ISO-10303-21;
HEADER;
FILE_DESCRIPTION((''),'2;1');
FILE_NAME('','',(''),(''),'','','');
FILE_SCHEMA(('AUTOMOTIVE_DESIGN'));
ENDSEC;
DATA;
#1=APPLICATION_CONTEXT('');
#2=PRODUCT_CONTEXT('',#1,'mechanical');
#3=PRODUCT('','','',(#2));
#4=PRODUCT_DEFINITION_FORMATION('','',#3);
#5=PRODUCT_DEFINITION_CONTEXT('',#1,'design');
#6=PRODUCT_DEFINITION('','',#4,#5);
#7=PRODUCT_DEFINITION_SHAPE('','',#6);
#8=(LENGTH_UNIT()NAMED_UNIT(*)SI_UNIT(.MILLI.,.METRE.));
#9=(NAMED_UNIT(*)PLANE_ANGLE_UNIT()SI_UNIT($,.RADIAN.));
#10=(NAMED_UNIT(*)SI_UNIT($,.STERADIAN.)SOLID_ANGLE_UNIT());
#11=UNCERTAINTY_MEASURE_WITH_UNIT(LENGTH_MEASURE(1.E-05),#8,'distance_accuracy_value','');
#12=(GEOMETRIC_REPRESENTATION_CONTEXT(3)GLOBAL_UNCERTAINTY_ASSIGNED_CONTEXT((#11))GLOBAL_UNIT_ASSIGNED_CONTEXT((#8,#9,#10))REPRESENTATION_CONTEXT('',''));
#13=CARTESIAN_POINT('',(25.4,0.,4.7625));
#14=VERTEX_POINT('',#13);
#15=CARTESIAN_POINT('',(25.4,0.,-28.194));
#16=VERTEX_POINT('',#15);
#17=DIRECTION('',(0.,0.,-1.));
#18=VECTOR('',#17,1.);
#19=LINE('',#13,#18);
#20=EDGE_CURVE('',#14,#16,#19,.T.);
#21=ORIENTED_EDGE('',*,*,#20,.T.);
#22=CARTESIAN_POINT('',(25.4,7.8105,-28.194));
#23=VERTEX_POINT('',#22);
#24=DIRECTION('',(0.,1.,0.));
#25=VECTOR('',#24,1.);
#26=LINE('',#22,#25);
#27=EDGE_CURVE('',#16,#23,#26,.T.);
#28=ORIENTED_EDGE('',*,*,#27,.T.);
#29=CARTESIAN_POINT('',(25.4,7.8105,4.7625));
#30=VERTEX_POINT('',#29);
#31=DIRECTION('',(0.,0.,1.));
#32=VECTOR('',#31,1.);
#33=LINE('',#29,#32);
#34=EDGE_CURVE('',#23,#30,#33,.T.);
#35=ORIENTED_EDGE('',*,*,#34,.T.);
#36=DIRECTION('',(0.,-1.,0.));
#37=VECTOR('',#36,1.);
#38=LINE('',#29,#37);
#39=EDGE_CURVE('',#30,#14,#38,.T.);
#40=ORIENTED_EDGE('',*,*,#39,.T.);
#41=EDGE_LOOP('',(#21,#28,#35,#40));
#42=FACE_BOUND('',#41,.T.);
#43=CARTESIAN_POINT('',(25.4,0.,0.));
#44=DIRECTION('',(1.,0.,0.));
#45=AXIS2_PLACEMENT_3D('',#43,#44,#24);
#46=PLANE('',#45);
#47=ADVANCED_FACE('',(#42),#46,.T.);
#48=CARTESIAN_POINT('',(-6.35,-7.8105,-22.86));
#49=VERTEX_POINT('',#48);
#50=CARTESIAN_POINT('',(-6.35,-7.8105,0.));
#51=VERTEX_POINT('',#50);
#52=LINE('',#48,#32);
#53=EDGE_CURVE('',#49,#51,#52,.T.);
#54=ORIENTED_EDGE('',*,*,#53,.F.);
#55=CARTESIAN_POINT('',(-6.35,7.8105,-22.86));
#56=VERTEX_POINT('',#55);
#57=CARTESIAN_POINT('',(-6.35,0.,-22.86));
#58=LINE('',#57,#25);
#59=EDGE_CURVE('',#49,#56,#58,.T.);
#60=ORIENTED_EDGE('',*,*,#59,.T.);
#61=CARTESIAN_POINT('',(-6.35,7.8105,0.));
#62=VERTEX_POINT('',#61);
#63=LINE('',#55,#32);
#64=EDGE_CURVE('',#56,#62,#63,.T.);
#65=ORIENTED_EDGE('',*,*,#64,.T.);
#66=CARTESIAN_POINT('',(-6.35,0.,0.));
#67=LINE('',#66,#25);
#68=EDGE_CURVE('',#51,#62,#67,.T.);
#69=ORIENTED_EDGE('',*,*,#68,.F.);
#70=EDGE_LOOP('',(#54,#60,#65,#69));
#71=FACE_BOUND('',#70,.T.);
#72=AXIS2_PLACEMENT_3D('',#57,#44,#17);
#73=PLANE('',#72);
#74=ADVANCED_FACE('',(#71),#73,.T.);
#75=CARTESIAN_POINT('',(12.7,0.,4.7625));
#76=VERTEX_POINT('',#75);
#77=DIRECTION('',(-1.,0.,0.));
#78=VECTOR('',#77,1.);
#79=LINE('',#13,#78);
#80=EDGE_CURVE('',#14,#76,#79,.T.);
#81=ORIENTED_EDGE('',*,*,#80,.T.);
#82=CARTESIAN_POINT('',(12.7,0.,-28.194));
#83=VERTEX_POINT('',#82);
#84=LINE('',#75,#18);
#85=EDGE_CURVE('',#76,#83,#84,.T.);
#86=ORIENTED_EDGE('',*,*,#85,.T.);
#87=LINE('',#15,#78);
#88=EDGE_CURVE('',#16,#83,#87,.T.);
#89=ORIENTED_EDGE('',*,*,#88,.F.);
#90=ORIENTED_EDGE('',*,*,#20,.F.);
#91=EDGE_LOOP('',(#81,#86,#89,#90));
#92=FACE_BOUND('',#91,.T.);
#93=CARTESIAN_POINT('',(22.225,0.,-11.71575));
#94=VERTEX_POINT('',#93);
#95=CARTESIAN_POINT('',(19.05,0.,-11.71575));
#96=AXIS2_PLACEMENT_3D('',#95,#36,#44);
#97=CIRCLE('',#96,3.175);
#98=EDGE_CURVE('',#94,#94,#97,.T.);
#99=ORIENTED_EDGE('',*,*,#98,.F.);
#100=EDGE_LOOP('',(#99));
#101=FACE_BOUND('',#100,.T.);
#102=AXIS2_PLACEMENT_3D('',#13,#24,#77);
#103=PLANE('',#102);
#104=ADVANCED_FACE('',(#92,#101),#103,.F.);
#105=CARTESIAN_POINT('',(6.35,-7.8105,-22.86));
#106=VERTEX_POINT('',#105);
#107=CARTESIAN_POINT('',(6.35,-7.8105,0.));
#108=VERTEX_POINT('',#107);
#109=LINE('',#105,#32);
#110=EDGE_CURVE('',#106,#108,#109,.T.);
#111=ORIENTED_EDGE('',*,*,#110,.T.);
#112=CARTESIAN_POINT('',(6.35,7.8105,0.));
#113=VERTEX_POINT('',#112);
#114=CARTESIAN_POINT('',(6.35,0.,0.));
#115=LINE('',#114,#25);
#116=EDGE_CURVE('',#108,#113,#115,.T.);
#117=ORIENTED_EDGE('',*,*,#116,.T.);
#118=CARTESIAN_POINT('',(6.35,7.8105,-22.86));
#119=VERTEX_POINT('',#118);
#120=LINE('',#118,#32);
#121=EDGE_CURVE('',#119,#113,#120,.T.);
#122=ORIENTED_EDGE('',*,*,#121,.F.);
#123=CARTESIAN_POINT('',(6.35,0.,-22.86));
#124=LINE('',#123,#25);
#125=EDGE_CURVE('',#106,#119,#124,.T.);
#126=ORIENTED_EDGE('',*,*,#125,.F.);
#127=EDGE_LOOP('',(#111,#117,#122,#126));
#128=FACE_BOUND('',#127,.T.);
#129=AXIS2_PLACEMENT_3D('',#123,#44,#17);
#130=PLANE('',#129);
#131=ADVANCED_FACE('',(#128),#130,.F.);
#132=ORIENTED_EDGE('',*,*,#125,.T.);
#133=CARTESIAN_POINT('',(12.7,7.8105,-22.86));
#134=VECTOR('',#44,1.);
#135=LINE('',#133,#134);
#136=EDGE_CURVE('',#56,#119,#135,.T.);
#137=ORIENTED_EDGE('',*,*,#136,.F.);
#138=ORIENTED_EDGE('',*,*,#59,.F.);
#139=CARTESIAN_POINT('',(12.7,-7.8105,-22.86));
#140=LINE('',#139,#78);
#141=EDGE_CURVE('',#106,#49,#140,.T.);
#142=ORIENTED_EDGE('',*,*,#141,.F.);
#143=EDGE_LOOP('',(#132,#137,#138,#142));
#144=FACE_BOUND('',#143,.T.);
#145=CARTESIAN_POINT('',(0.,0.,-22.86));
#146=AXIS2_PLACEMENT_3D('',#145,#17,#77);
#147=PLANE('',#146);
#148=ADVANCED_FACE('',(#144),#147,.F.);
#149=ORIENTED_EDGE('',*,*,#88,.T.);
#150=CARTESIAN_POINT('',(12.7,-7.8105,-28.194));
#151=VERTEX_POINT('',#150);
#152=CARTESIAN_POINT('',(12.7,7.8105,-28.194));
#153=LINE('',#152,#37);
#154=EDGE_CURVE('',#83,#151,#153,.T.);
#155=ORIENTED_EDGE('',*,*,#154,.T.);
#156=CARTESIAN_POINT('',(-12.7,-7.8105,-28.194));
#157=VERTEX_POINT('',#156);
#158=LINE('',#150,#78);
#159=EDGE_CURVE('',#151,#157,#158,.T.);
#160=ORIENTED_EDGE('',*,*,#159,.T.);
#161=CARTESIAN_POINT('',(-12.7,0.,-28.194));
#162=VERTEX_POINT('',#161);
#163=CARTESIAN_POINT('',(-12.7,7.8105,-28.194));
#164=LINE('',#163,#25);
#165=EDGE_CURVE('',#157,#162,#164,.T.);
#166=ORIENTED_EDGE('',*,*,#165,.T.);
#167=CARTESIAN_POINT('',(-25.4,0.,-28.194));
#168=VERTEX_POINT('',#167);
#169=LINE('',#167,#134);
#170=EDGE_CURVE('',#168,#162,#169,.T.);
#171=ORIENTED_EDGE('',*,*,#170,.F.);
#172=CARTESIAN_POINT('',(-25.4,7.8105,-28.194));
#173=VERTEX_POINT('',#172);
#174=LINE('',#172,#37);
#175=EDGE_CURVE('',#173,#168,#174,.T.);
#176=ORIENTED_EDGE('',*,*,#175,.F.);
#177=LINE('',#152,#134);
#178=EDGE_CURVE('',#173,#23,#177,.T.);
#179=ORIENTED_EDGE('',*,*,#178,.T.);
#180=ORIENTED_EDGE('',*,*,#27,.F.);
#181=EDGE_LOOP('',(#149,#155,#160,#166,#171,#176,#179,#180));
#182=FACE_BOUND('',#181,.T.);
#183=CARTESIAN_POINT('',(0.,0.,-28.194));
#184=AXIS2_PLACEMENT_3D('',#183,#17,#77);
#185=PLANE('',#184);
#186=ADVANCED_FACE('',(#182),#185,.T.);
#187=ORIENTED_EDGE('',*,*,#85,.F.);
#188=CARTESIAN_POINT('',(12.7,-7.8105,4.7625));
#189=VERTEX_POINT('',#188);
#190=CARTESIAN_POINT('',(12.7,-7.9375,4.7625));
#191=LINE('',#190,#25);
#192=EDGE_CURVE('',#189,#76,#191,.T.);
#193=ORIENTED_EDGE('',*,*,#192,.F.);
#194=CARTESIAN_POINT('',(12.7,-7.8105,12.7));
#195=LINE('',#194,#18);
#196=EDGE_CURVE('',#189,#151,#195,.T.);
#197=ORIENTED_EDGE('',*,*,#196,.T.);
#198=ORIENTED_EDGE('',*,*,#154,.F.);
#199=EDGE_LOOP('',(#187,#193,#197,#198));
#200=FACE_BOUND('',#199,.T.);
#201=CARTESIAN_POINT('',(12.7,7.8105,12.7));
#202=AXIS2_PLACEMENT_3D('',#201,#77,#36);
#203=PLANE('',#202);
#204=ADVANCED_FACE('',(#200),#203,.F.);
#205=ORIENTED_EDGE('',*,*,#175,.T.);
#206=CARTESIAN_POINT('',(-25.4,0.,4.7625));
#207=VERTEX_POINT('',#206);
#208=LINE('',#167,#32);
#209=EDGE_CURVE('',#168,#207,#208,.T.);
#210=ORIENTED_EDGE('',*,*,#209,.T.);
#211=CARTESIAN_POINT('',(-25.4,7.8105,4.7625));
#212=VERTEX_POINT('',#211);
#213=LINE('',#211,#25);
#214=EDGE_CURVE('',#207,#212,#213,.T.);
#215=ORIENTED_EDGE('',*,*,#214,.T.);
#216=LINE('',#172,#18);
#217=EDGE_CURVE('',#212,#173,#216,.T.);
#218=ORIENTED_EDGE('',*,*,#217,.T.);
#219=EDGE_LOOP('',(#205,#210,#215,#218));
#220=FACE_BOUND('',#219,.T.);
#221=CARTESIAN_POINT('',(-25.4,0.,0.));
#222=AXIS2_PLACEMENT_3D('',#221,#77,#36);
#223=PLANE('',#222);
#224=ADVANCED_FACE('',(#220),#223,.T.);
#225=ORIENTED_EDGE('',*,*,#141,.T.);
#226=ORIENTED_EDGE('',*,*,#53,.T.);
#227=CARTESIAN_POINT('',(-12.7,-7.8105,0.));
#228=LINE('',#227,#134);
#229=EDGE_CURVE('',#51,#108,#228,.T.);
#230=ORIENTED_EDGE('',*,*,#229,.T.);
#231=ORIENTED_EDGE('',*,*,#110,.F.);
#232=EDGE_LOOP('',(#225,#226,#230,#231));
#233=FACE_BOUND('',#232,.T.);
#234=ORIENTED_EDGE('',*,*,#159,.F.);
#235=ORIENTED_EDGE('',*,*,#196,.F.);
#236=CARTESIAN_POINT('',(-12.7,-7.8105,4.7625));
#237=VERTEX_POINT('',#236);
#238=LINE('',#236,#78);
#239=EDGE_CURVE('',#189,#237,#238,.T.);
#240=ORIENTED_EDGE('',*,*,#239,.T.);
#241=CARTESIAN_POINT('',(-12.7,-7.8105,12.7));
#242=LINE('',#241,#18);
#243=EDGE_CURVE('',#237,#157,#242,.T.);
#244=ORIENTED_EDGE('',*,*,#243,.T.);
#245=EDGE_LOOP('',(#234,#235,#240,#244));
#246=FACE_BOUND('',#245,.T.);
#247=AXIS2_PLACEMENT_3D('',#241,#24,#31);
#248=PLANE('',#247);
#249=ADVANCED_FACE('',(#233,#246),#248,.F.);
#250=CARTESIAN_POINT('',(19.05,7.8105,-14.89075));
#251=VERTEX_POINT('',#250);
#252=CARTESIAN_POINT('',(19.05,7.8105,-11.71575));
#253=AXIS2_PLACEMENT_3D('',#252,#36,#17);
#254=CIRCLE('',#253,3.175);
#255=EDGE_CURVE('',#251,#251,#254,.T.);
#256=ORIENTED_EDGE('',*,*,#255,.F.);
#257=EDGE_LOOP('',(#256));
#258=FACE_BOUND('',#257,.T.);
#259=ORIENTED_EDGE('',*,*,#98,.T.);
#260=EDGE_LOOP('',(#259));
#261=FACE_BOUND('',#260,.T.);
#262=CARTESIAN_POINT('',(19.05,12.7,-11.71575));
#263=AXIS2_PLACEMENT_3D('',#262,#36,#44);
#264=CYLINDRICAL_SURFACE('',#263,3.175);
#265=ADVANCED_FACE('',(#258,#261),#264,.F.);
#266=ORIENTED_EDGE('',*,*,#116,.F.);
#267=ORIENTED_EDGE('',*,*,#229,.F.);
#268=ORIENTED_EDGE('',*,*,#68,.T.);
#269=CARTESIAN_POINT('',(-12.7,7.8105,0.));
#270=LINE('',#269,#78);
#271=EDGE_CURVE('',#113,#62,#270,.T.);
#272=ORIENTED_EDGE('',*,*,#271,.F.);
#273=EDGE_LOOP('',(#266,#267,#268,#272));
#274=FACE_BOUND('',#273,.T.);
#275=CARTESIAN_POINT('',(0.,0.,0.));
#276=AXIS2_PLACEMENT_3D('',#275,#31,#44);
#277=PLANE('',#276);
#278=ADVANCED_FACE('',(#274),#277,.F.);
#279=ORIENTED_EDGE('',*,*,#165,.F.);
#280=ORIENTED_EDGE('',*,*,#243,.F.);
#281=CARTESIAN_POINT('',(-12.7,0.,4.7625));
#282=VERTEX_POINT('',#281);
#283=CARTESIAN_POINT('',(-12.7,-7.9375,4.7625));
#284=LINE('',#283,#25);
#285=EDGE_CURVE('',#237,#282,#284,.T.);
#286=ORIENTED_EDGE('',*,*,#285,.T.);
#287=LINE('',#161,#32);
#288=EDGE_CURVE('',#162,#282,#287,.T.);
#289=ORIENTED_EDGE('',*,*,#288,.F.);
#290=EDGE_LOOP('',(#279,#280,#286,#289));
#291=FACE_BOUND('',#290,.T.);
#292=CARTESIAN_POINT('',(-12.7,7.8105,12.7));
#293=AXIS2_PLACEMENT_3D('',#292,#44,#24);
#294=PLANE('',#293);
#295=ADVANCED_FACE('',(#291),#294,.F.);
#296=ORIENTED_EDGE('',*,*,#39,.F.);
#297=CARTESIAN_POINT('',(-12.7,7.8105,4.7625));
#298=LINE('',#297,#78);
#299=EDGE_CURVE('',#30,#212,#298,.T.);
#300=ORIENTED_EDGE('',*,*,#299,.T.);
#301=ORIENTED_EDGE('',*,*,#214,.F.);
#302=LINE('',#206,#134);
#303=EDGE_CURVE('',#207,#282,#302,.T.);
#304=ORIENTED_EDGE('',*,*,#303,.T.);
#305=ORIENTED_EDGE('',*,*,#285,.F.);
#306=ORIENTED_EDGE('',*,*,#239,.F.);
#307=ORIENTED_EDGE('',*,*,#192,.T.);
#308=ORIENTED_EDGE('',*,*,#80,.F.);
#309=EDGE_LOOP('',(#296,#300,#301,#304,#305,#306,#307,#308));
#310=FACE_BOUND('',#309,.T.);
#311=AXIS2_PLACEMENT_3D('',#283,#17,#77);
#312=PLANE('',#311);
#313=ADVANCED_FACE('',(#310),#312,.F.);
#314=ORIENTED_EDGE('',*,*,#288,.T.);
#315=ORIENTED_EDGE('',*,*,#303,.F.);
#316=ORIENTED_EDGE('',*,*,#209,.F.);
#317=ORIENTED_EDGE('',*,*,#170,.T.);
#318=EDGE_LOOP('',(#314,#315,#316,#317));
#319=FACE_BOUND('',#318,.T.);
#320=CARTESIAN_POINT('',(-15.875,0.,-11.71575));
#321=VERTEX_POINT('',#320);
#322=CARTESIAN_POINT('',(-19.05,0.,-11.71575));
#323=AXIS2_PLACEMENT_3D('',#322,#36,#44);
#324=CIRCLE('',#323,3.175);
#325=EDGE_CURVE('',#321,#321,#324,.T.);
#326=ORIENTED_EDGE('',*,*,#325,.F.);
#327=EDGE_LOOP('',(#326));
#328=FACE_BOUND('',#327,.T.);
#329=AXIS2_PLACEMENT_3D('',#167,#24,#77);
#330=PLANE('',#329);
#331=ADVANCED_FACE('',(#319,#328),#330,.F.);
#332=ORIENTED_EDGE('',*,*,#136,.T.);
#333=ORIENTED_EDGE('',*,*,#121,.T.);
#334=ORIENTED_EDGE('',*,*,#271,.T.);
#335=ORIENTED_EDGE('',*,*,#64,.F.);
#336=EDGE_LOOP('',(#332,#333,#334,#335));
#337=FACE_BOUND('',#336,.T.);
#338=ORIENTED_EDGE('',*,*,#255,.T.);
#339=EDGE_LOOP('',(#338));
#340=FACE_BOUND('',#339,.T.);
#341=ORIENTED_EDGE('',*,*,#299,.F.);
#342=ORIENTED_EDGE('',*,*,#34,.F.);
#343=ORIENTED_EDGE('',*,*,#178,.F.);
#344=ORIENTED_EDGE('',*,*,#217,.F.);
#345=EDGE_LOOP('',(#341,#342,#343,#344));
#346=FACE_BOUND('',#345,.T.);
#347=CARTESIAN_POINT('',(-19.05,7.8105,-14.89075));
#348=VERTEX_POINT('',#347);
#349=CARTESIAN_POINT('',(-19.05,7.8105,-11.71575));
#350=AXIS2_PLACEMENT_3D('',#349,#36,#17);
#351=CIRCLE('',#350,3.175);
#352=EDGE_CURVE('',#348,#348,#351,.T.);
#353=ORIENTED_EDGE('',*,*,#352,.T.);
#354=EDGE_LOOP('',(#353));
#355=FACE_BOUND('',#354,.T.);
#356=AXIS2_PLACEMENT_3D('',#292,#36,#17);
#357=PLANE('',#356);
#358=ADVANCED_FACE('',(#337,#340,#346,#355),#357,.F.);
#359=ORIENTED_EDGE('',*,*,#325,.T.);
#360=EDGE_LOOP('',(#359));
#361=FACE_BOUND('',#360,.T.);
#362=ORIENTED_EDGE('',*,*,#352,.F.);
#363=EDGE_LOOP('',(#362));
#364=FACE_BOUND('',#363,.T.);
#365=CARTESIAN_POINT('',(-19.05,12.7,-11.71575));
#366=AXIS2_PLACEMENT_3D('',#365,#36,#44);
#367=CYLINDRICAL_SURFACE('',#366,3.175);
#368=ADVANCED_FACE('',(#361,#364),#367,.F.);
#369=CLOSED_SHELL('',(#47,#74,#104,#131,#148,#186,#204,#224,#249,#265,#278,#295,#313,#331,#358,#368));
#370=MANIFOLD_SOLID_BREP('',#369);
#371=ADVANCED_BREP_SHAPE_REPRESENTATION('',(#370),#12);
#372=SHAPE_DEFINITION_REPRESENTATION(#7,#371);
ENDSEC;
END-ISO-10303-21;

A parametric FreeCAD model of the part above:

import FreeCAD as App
import Part
import Sketcher
Q = App.Units.Quantity


def add_polygon(sketch, points):
    """Adds a closed chain of lines whose ends are joined by coincident constraints."""
    first, n = sketch.GeometryCount, len(points)
    for a, b in zip(points, points[1:] + points[:1]):
        sketch.addGeometry(Part.LineSegment(App.Vector(*a, 0), App.Vector(*b, 0)), False)
    for i in range(n):
        sketch.addConstraint(Sketcher.Constraint("Coincident", first + i, 2, first + (i + 1) % n, 1))

doc = App.newDocument("Part")
body = doc.addObject("PartDesign::Body", "Body")

# Sketch on XY plane
sketch1 = body.newObject("Sketcher::SketchObject", "Sketch")
sketch1.AttachmentSupport = (doc.getObject("XY_Plane"), [""])
sketch1.MapMode = "FlatFace"
add_polygon(sketch1, [(-13, 8), (-13, -8), (13, -8), (13, 8)])  # lines 0-3
sketch1.addConstraint([
    Sketcher.Constraint("Vertical", 0),
    Sketcher.Constraint("Horizontal", 1),
    Sketcher.Constraint("Vertical", 2),
    Sketcher.Constraint("Horizontal", 3),
    Sketcher.Constraint("Symmetric", 0, 2, 2, 2, -1, 1),
    Sketcher.Constraint("DistanceX", 1, 1, 1, 2, Q("1 in")),
    Sketcher.Constraint("DistanceY", 0, 2, 0, 1, Q("0.615 in")),
])
pad1 = body.newObject("PartDesign::Pad", "Pad")
pad1.Profile = sketch1
pad1.Length = Q("0.5 in")

# Sketch on XY plane
sketch2 = body.newObject("Sketcher::SketchObject", "Sketch001")
sketch2.AttachmentSupport = (doc.getObject("XY_Plane"), [""])
sketch2.MapMode = "FlatFace"
add_polygon(sketch2, [(-6, 8), (-6, -8), (-13, -8), (-13, 8)])  # lines 0-3
add_polygon(sketch2, [(13, 8), (13, -8), (6, -8), (6, 8)])  # lines 4-7
sketch2.addConstraint([
    Sketcher.Constraint("Vertical", 0),
    Sketcher.Constraint("Horizontal", 1),
    Sketcher.Constraint("Vertical", 2),
    Sketcher.Constraint("Horizontal", 3),
    Sketcher.Constraint("Vertical", 4),
    Sketcher.Constraint("Horizontal", 5),
    Sketcher.Constraint("Vertical", 6),
    Sketcher.Constraint("Horizontal", 7),
    Sketcher.Constraint("Symmetric", 2, 2, 4, 2, -1, 1),
    Sketcher.Constraint("Symmetric", 0, 2, 6, 2, -1, 1),
    Sketcher.Constraint("Horizontal", 1, 2, 4, 2),
    Sketcher.Constraint("DistanceX", 1, 2, 4, 2, Q("1 in")),
    Sketcher.Constraint("DistanceX", 1, 2, 1, 1, Q("0.25 in")),
    Sketcher.Constraint("DistanceY", 0, 2, 0, 1, Q("0.615 in")),
])
pad2 = body.newObject("PartDesign::Pad", "Pad001")
pad2.Profile = sketch2
pad2.Length = Q("0.9 in")
pad2.Reversed = True

# Sketch on XZ plane
sketch3 = body.newObject("Sketcher::SketchObject", "Sketch002")
sketch3.AttachmentSupport = (doc.getObject("XZ_Plane"), [""])
sketch3.MapMode = "FlatFace"
sketch3.AttachmentOffset = App.Placement(App.Vector(0, 0, -0.3075 * 25.4), App.Rotation())
add_polygon(sketch3, [(-13, 5), (-13, 13), (13, 13), (13, 5)])  # lines 0-3
sketch3.addConstraint([
    Sketcher.Constraint("Vertical", 0),
    Sketcher.Constraint("Horizontal", 1),
    Sketcher.Constraint("Vertical", 2),
    Sketcher.Constraint("Horizontal", 3),
    Sketcher.Constraint("DistanceX", 1, 1, 1, 2, Q("1 in")),
    Sketcher.Constraint("DistanceX", 0, 2, -1, 1, Q("0.5 in")),
    Sketcher.Constraint("DistanceY", -1, 1, 0, 2, Q("0.5 in")),
    Sketcher.Constraint("DistanceY", 0, 1, 0, 2, Q("0.3125 in")),
])
pocket1 = body.newObject("PartDesign::Pocket", "Pocket")
pocket1.Profile = sketch3
pocket1.Length = Q("0.62 in")
pocket1.Reversed = True

# Sketch on XY plane
sketch4 = body.newObject("Sketcher::SketchObject", "Sketch003")
sketch4.AttachmentSupport = (doc.getObject("XY_Plane"), [""])
sketch4.MapMode = "FlatFace"
sketch4.AttachmentOffset = App.Placement(App.Vector(0, 0, -0.9 * 25.4), App.Rotation())
add_polygon(sketch4, [(13, 8), (13, -8), (-13, -8), (-13, 8)])  # lines 0-3
sketch4.addConstraint([
    Sketcher.Constraint("Vertical", 0),
    Sketcher.Constraint("Horizontal", 1),
    Sketcher.Constraint("Vertical", 2),
    Sketcher.Constraint("Horizontal", 3),
    Sketcher.Constraint("Symmetric", 0, 2, 2, 2, -1, 1),
    Sketcher.Constraint("DistanceX", 1, 2, 1, 1, Q("1 in")),
    Sketcher.Constraint("DistanceY", 0, 2, 0, 1, Q("0.615 in")),
])
pad3 = body.newObject("PartDesign::Pad", "Pad002")
pad3.Profile = sketch4
pad3.Length = Q("0.21 in")
pad3.Reversed = True

# Sketch on YZ plane
sketch5 = body.newObject("Sketcher::SketchObject", "Sketch004")
sketch5.AttachmentSupport = (doc.getObject("YZ_Plane"), [""])
sketch5.MapMode = "FlatFace"
sketch5.AttachmentOffset = App.Placement(App.Vector(0, 0, -0.5 * 25.4), App.Rotation())
add_polygon(sketch5, [(8, -28), (0, -28), (0, 5), (8, 5)])  # lines 0-3
sketch5.addConstraint([
    Sketcher.Constraint("Horizontal", 0),
    Sketcher.Constraint("Vertical", 1),
    Sketcher.Constraint("Horizontal", 2),
    Sketcher.Constraint("Vertical", 3),
    Sketcher.Constraint("PointOnObject", 0, 2, -2),
    Sketcher.Constraint("DistanceY", 0, 2, -1, 1, Q("1.11 in")),
    Sketcher.Constraint("DistanceX", 0, 2, 0, 1, Q("0.3075 in")),
    Sketcher.Constraint("DistanceY", 1, 1, 1, 2, Q("1.2975 in")),
])
pad4 = body.newObject("PartDesign::Pad", "Pad003")
pad4.Profile = sketch5
pad4.Length = Q("0.5 in")
pad4.Reversed = True

# Sketch on YZ plane
sketch6 = body.newObject("Sketcher::SketchObject", "Sketch005")
sketch6.AttachmentSupport = (doc.getObject("YZ_Plane"), [""])
sketch6.MapMode = "FlatFace"
sketch6.AttachmentOffset = App.Placement(App.Vector(0, 0, 0.5 * 25.4), App.Rotation())
add_polygon(sketch6, [(8, 5), (0, 5), (0, -28), (8, -28)])  # lines 0-3
sketch6.addConstraint([
    Sketcher.Constraint("Horizontal", 0),
    Sketcher.Constraint("Vertical", 1),
    Sketcher.Constraint("Horizontal", 2),
    Sketcher.Constraint("Vertical", 3),
    Sketcher.Constraint("PointOnObject", 0, 2, -2),
    Sketcher.Constraint("DistanceY", 1, 2, -1, 1, Q("1.11 in")),
    Sketcher.Constraint("DistanceX", 0, 2, 0, 1, Q("0.3075 in")),
    Sketcher.Constraint("DistanceY", 1, 2, 1, 1, Q("1.2975 in")),
])
pad5 = body.newObject("PartDesign::Pad", "Pad004")
pad5.Profile = sketch6
pad5.Length = Q("0.5 in")

# Sketch on XZ plane
sketch7 = body.newObject("Sketcher::SketchObject", "Sketch006")
sketch7.AttachmentSupport = (doc.getObject("XZ_Plane"), [""])
sketch7.MapMode = "FlatFace"
sketch7.addGeometry([
    Part.Circle(App.Vector(-19.1, -11.7, 0), App.Vector(0, 0, 1), 3.2),
    Part.Circle(App.Vector(19.1, -11.7, 0), App.Vector(0, 0, 1), 3.2),
], False)
sketch7.addConstraint([
    Sketcher.Constraint("Equal", 0, 1),
    Sketcher.Constraint("Symmetric", 0, 3, 1, 3, -2),
    Sketcher.Constraint("Diameter", 0, Q("0.25 in")),
    Sketcher.Constraint("DistanceX", 0, 3, 1, 3, Q("1.5 in")),
    Sketcher.Constraint("DistanceY", 0, 3, -1, 1, 11.71575),
])
pocket2 = body.newObject("PartDesign::Pocket", "Pocket001")
pocket2.Profile = sketch7
pocket2.Length = Q("0.5 in")

doc.recompute()
